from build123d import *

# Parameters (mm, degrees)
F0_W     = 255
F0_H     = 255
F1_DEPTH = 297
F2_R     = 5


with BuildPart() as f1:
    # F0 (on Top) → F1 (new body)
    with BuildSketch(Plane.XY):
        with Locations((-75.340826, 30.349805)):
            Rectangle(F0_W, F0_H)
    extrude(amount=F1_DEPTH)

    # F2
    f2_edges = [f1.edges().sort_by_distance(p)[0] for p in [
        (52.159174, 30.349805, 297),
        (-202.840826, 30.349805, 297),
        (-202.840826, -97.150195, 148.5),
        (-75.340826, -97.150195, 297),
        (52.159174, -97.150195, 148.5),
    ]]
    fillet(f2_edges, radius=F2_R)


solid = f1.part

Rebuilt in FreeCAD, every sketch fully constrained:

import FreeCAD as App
import Part
import Sketcher

V = App.Vector


def edges_at(feature, points):
    """Names of the edges that pass closest to the given points."""
    edges = feature.Shape.Edges
    near = lambda p: min(range(len(edges)), key=lambda i: edges[i].distToShape(Part.Vertex(*p))[0])
    return sorted({f"Edge{near(p) + 1}" for p in points})


def add_polygon(sketch, points):
    """Adds a closed chain of lines whose ends are joined by coincident constraints."""
    first, n = sketch.GeometryCount, len(points)
    for a, b in zip(points, points[1:] + points[:1]):
        sketch.addGeometry(Part.LineSegment(App.Vector(*a, 0), App.Vector(*b, 0)), False)
    for i in range(n):
        sketch.addConstraint(Sketcher.Constraint("Coincident", first + i, 2, first + (i + 1) % n, 1))

doc = App.newDocument("Part")
params = doc.addObject("Spreadsheet::Sheet", "Params")
for row, (alias, value) in enumerate([
    ("sketch1_width", "255 mm"),
    ("pad1_length", "297 mm"),
    ("fillet_radius", "5 mm"),
], start=1):
    params.set(f"A{row}", alias)
    params.set(f"B{row}", "=" + value)
    params.setAlias(f"B{row}", alias)

body = doc.addObject("PartDesign::Body", "Body")

sketch1 = body.newObject("Sketcher::SketchObject", "Sketch")
sketch1.AttachmentSupport = (doc.getObject("XY_Plane"), [""])
sketch1.MapMode = "FlatFace"
add_polygon(sketch1, [(-203, 158), (-203, -97), (52, -97), (52, 158)])
sketch1.addConstraint([
    Sketcher.Constraint("Vertical", 0),
    Sketcher.Constraint("Horizontal", 1),
    Sketcher.Constraint("Vertical", 2),
    Sketcher.Constraint("Horizontal", 3),
    Sketcher.Constraint("Equal", 3, 0),
    Sketcher.Constraint("DistanceX", 1, 1, 1, 2, 255.0),
    Sketcher.Constraint("DistanceX", 0, 2, -1, 1, 202.840826),
    Sketcher.Constraint("DistanceY", 0, 2, -1, 1, 97.150195),
])
sketch1.setExpression("Constraints[9]", "Params.sketch1_width")
pad1 = body.newObject("PartDesign::Pad", "Pad")
pad1.Profile = sketch1
pad1.setExpression("Length", "Params.pad1_length")
doc.recompute()

fillet = body.newObject("PartDesign::Fillet", "Fillet")
fillet.Base = (pad1, edges_at(pad1, [
    (52.159, 30.35, 297),
    (-202.841, 30.35, 297),
    (-202.841, -97.15, 148.5),
    (-75.341, -97.15, 297),
    (52.159, -97.15, 148.5),
]))
fillet.setExpression("Radius", "Params.fillet_radius")

doc.recompute()
